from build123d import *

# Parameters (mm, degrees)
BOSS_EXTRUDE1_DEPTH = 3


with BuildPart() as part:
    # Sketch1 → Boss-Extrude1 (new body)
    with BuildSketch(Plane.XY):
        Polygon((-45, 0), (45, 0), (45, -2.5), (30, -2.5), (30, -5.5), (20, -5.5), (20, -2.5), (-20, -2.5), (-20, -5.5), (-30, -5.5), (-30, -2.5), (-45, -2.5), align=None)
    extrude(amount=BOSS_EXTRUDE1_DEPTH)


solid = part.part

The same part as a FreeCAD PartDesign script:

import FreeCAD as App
import Part
import Sketcher
Q = App.Units.Quantity


def add_polygon(sketch, points):
    """Adds a closed chain of lines whose ends are joined by coincident constraints."""
    first, n = sketch.GeometryCount, len(points)
    for a, b in zip(points, points[1:] + points[:1]):
        sketch.addGeometry(Part.LineSegment(App.Vector(*a, 0), App.Vector(*b, 0)), False)
    for i in range(n):
        sketch.addConstraint(Sketcher.Constraint("Coincident", first + i, 2, first + (i + 1) % n, 1))

doc = App.newDocument("Part")
body = doc.addObject("PartDesign::Body", "Body")

# Sketch on XY plane
sketch1 = doc.addObject("Sketcher::SketchObject", "Sketch")
body.addObject(sketch1)
sketch1.AttachmentSupport = (doc.XY_Plane, [""])
sketch1.MapMode = "FlatFace"
add_polygon(sketch1, [(45, 0), (-45, 0), (-45, -2.5), (-30, -2.5), (-30, -5.5), (-20, -5.5), (-20, -2.5), (20, -2.5), (20, -5.5), (30, -5.5), (30, -2.5), (45, -2.5)])  # lines 0-11
sketch1.addConstraint(Sketcher.Constraint("Horizontal", 0))
sketch1.addConstraint(Sketcher.Constraint("Vertical", 1))
sketch1.addConstraint(Sketcher.Constraint("Horizontal", 2))
sketch1.addConstraint(Sketcher.Constraint("Vertical", 3))
sketch1.addConstraint(Sketcher.Constraint("Horizontal", 4))
sketch1.addConstraint(Sketcher.Constraint("Vertical", 5))
sketch1.addConstraint(Sketcher.Constraint("Horizontal", 6))
sketch1.addConstraint(Sketcher.Constraint("Vertical", 7))
sketch1.addConstraint(Sketcher.Constraint("Horizontal", 8))
sketch1.addConstraint(Sketcher.Constraint("Vertical", 9))
sketch1.addConstraint(Sketcher.Constraint("Horizontal", 10))
sketch1.addConstraint(Sketcher.Constraint("Vertical", 11))
sketch1.addConstraint(Sketcher.Constraint("Symmetric", 0, 2, 11, 2, -1, 1))
sketch1.addConstraint(Sketcher.Constraint("Symmetric", 4, 2, 7, 2, -2))
sketch1.addConstraint(Sketcher.Constraint("Symmetric", 2, 2, 9, 2, -2))
sketch1.addConstraint(Sketcher.Constraint("Horizontal", 2, 2, 5, 2))
sketch1.addConstraint(Sketcher.Constraint("DistanceX", 0, 2, 0, 1, Q("90 mm")))
sketch1.addConstraint(Sketcher.Constraint("DistanceX", 2, 1, 2, 2, Q("15 mm")))
sketch1.addConstraint(Sketcher.Constraint("DistanceX", 4, 1, 4, 2, Q("10 mm")))
sketch1.addConstraint(Sketcher.Constraint("DistanceY", 3, 2, 3, 1, Q("3 mm")))
sketch1.addConstraint(Sketcher.Constraint("DistanceY", 1, 2, 1, 1, Q("2.5 mm")))
pad1 = doc.addObject("PartDesign::Pad", "Pad")
body.addObject(pad1)
pad1.Profile = sketch1
pad1.Length = 3

doc.recompute()
